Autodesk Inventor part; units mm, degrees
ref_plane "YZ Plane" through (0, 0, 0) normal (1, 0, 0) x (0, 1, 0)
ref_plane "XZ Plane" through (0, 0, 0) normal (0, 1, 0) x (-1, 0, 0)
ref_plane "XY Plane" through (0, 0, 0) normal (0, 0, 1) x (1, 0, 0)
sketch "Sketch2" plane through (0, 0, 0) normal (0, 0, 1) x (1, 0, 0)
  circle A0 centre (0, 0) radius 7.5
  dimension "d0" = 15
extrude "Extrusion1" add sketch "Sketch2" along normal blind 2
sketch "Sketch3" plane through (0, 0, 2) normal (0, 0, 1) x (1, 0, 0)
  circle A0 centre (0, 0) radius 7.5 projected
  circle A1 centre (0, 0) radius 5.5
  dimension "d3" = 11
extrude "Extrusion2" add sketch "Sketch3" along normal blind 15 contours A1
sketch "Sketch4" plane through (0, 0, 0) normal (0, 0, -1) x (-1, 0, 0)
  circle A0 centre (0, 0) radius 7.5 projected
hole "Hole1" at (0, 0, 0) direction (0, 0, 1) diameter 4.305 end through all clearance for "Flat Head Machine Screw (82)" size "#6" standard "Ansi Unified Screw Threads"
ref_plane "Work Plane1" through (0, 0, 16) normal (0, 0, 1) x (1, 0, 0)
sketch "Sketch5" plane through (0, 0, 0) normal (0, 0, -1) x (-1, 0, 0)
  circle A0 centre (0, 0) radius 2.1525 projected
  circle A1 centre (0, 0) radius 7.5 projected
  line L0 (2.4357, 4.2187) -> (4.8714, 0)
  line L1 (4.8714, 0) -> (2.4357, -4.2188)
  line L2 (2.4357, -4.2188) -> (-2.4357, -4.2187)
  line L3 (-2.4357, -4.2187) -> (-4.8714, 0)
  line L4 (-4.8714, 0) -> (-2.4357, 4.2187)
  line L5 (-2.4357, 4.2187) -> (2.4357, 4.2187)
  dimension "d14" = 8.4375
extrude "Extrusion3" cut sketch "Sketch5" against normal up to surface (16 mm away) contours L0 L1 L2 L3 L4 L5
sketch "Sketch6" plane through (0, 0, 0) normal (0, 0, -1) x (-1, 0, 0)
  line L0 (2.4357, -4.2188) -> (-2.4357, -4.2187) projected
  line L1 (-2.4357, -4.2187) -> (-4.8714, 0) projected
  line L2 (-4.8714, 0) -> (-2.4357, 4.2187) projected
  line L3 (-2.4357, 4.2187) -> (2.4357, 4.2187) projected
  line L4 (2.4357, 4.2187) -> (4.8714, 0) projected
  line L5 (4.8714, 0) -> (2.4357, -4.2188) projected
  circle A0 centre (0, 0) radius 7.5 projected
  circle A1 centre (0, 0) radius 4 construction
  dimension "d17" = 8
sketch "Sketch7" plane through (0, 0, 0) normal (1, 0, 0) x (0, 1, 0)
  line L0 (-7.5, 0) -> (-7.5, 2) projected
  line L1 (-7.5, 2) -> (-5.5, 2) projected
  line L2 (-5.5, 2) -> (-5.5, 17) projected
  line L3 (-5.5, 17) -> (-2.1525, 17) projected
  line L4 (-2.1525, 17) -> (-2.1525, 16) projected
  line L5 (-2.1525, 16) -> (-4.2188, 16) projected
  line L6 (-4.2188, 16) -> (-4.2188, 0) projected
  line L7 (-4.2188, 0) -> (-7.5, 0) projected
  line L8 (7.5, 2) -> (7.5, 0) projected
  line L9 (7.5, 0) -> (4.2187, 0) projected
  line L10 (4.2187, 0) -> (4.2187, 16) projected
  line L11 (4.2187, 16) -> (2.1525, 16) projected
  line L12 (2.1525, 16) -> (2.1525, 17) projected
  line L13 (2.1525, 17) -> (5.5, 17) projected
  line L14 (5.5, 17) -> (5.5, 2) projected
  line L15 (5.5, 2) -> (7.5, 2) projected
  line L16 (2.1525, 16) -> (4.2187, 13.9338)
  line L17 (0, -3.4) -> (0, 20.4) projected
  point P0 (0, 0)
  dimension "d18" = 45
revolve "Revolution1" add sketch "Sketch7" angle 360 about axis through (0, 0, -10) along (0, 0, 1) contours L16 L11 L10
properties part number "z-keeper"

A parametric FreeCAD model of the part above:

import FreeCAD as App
import Part
import Sketcher
Q = App.Units.Quantity

doc = App.newDocument("Part")
body = doc.addObject("PartDesign::Body", "Body")

# Sketch on XY plane
sketch1 = body.newObject("Sketcher::SketchObject", "Sketch")
sketch1.AttachmentSupport = (doc.getObject("XY_Plane"), [""])
sketch1.MapMode = "FlatFace"
sketch1.addGeometry(Part.Circle(App.Vector(0, 0, 0), App.Vector(0, 0, 1), 8), False)
sketch1.addConstraint([
    Sketcher.Constraint("Coincident", 0, 3, -1, 1),
    Sketcher.Constraint("Diameter", 0, Q("15 mm")),
])
pad1 = body.newObject("PartDesign::Pad", "Pad")
pad1.Profile = sketch1
pad1.Length = 2

# Sketch on XY plane
sketch2 = body.newObject("Sketcher::SketchObject", "Sketch001")
sketch2.AttachmentSupport = (doc.getObject("XY_Plane"), [""])
sketch2.MapMode = "FlatFace"
sketch2.AttachmentOffset = App.Placement(App.Vector(0, 0, 2), App.Rotation())
sketch2.addGeometry(Part.Circle(App.Vector(0, 0, 0), App.Vector(0, 0, 1), 6), False)
sketch2.addConstraint([
    Sketcher.Constraint("Coincident", 0, 3, -1, 1),
    Sketcher.Constraint("Diameter", 0, Q("11 mm")),
])
pad2 = body.newObject("PartDesign::Pad", "Pad001")
pad2.Profile = sketch2
pad2.Length = 15

# Sketch on XY plane
sketch3 = body.newObject("Sketcher::SketchObject", "Sketch002")
sketch3.AttachmentSupport = (doc.getObject("XY_Plane"), [""])
sketch3.MapMode = "FlatFace"
sketch3.addGeometry(Part.Circle(App.Vector(0, 0, 0), App.Vector(0, 0, 1), 2.2), False)
sketch3.addConstraint([
    Sketcher.Constraint("Coincident", 0, 3, -1, 1),
    Sketcher.Constraint("Diameter", 0, Q("4.305 mm")),
])
doc.recompute()
hole = body.newObject("PartDesign::Hole", "Hole")
hole.Profile = sketch3
hole.ThreadType = "None"
hole.Diameter = 4.305
hole.DepthType = "ThroughAll"
hole.Reversed = True

# Sketch on XY plane
sketch4 = body.newObject("Sketcher::SketchObject", "Sketch003")
sketch4.AttachmentSupport = (doc.getObject("XY_Plane"), [""])
sketch4.MapMode = "FlatFace"
sketch4.addGeometry([
    Part.LineSegment(App.Vector(-4.9, 0, 0), App.Vector(-2.4, 4.2, 0)),  # 0
    Part.LineSegment(App.Vector(-2.4, 4.2, 0), App.Vector(2.4, 4.2, 0)),  # 1
    Part.LineSegment(App.Vector(2.4, 4.2, 0), App.Vector(4.9, 0, 0)),  # 2
    Part.LineSegment(App.Vector(4.9, 0, 0), App.Vector(2.4, -4.2, 0)),  # 3
    Part.LineSegment(App.Vector(2.4, -4.2, 0), App.Vector(-2.4, -4.2, 0)),  # 4
    Part.LineSegment(App.Vector(-2.4, -4.2, 0), App.Vector(-4.9, 0, 0)),  # 5
    Part.Circle(App.Vector(0, 0, 0), App.Vector(0, 0, 1), 2.2),  # 6
], False)
sketch4.addConstraint([
    Sketcher.Constraint("Coincident", 0, 2, 1, 1),
    Sketcher.Constraint("Coincident", 1, 2, 2, 1),
    Sketcher.Constraint("Coincident", 2, 2, 3, 1),
    Sketcher.Constraint("Coincident", 3, 2, 4, 1),
    Sketcher.Constraint("Coincident", 4, 2, 5, 1),
    Sketcher.Constraint("Coincident", 5, 2, 0, 1),
    Sketcher.Constraint("Horizontal", 1),
    Sketcher.Constraint("Horizontal", 4),
    Sketcher.Constraint("Coincident", 6, 3, -1, 1),
    Sketcher.Constraint("Symmetric", 0, 2, 3, 2, -1, 1),
    Sketcher.Constraint("Symmetric", 2, 2, 5, 2, -1, 1),
    Sketcher.Constraint("PointOnObject", 2, 2, -1),
    Sketcher.Constraint("Parallel", 2, 5),
    Sketcher.Constraint("Vertical", 1, 2, 3, 2),
    Sketcher.Constraint("Angle", 0, Q("59.9997 deg")),
    Sketcher.Constraint("Diameter", 6, Q("4.305 mm")),
    Sketcher.Constraint("DistanceY", 3, 2, 1, 2, Q("8.4374 mm")),
    Sketcher.Constraint("DistanceX", 1, 1, 1, 2, Q("4.8714 mm")),
])
pocket1 = body.newObject("PartDesign::Pocket", "Pocket")
pocket1.Profile = sketch4
pocket1.Length = 16
pocket1.Reversed = True

# Sketch on YZ plane
sketch5 = body.newObject("Sketcher::SketchObject", "Sketch004")
sketch5.AttachmentSupport = (doc.getObject("YZ_Plane"), [""])
sketch5.MapMode = "FlatFace"
sketch5.addGeometry([
    Part.LineSegment(App.Vector(2.2, 16, 0), App.Vector(4.2, 13.9, 0)),
    Part.LineSegment(App.Vector(4.2, 13.9, 0), App.Vector(4.2, 16, 0)),
    Part.LineSegment(App.Vector(4.2, 16, 0), App.Vector(2.2, 16, 0)),
], False)
sketch5.addConstraint([
    Sketcher.Constraint("Coincident", 0, 2, 1, 1),
    Sketcher.Constraint("Coincident", 1, 2, 2, 1),
    Sketcher.Constraint("Coincident", 2, 2, 0, 1),
    Sketcher.Constraint("Vertical", 1),
    Sketcher.Constraint("Horizontal", 2),
    Sketcher.Constraint("Equal", 2, 1),
    Sketcher.Constraint("DistanceY", -1, 1, 1, 2, Q("16 mm")),
    Sketcher.Constraint("Distance", 0, Q("2.922 mm")),
    Sketcher.Constraint("DistanceX", -1, 1, 0, 2, Q("4.2187 mm")),
])
revolution = body.newObject("PartDesign::Revolution", "Revolution")
revolution.Profile = sketch5
revolution.ReferenceAxis = (sketch5, ["V_Axis"])
revolution.Angle = 360

doc.recompute()
